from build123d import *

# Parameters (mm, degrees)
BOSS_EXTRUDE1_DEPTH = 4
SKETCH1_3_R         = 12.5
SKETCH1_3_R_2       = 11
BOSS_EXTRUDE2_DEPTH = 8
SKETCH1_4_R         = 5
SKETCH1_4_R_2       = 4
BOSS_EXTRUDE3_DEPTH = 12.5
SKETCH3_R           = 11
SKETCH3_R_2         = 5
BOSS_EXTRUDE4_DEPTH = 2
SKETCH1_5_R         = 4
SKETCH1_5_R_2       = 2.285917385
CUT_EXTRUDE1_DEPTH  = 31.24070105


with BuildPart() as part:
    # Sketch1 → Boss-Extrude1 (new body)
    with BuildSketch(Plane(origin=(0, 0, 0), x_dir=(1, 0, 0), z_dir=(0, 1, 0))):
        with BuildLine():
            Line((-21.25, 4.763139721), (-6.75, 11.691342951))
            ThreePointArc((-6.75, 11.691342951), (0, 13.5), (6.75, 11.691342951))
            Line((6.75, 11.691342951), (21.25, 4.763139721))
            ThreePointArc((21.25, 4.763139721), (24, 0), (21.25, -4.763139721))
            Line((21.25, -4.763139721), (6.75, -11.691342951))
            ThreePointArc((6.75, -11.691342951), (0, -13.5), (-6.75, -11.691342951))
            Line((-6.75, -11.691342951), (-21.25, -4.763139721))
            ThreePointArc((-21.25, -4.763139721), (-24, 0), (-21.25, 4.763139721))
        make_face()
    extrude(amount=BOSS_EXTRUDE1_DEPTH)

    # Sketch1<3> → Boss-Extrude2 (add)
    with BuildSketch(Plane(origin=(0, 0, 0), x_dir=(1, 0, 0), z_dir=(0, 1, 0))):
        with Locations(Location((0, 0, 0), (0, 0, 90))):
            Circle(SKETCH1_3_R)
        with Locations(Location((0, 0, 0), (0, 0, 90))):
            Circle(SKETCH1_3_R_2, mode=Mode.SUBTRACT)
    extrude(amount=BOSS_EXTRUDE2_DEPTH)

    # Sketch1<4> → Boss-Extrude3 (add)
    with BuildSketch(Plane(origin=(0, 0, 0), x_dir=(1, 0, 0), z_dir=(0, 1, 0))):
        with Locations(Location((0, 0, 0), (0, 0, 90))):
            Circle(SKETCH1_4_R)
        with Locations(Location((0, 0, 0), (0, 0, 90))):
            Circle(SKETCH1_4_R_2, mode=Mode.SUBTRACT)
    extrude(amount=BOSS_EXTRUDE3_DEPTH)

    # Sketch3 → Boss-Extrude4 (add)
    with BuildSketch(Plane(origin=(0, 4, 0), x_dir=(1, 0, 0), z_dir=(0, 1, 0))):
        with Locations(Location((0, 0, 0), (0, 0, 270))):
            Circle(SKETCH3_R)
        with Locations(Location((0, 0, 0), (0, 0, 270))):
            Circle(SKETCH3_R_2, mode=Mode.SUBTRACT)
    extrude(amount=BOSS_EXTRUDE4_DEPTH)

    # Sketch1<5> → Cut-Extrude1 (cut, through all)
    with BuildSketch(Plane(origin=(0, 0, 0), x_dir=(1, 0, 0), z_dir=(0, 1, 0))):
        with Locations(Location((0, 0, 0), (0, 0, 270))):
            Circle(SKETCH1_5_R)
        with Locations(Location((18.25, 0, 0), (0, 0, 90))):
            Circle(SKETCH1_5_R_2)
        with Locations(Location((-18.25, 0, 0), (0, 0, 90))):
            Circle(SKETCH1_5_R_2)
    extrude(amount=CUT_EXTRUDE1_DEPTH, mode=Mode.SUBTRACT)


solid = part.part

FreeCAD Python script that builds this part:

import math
import FreeCAD as App
import Part
import Sketcher

doc = App.newDocument("Part")
body = doc.addObject("PartDesign::Body", "Body")

sketch1 = body.newObject("Sketcher::SketchObject", "Sketch")
sketch1.AttachmentSupport = (doc.getObject("XZ_Plane"), [""])
sketch1.MapMode = "FlatFace"
sketch1.addGeometry([
    Part.LineSegment(App.Vector(-6.75, -11.691343, 0), App.Vector(-21.25, -4.76314, 0)),
    Part.ArcOfCircle(Part.Circle(App.Vector(-18.5, 0, 0), App.Vector(0, 0, 1), 5.5), math.radians(120), math.radians(240)),
    Part.LineSegment(App.Vector(-21.25, 4.76314, 0), App.Vector(-6.75, 11.691343, 0)),
    Part.ArcOfCircle(Part.Circle(App.Vector(0, 0, 0), App.Vector(0, 0, 1), 13.5), math.radians(60), math.radians(120)),
    Part.LineSegment(App.Vector(6.75, 11.691343, 0), App.Vector(21.25, 4.76314, 0)),
    Part.ArcOfCircle(Part.Circle(App.Vector(18.5, 0, 0), App.Vector(0, 0, 1), 5.5), math.radians(-60), math.radians(60)),
    Part.LineSegment(App.Vector(21.25, -4.76314, 0), App.Vector(6.75, -11.691343, 0)),
    Part.ArcOfCircle(Part.Circle(App.Vector(0, 0, 0), App.Vector(0, 0, 1), 13.5), math.radians(-120), math.radians(-60)),
], False)
sketch1.addConstraint([
    Sketcher.Constraint("Coincident", 0, 2, 1, 2),
    Sketcher.Constraint("Coincident", 1, 1, 2, 1),
    Sketcher.Constraint("Coincident", 2, 2, 3, 2),
    Sketcher.Constraint("Coincident", 3, 1, 4, 1),
    Sketcher.Constraint("Coincident", 4, 2, 5, 2),
    Sketcher.Constraint("Coincident", 5, 1, 6, 1),
    Sketcher.Constraint("Coincident", 6, 2, 7, 2),
    Sketcher.Constraint("Coincident", 7, 1, 0, 1),
    Sketcher.Constraint("Coincident", 3, 3, -1, 1),
    Sketcher.Constraint("Coincident", 7, 3, -1, 1),
    Sketcher.Constraint("Equal", 1, 5),
    Sketcher.Constraint("Equal", 3, 7),
    Sketcher.Constraint("Symmetric", 1, 3, 5, 3, -1, 1),
    Sketcher.Constraint("Symmetric", 1, 1, 4, 2, -2),
    Sketcher.Constraint("Parallel", 0, 4),
    Sketcher.Constraint("Parallel", 2, 6),
    Sketcher.Constraint("Horizontal", 2, 2, 3, 1),
    Sketcher.Constraint("Horizontal", 0, 2, 5, 1),
    Sketcher.Constraint("Vertical", 0, 2, 1, 1),
    Sketcher.Constraint("Radius", 1, 5.5),
    Sketcher.Constraint("Radius", 3, 13.5),
    Sketcher.Constraint("DistanceX", 1, 3, 5, 3, 37.0),
    Sketcher.Constraint("DistanceX", 2, 2, 4, 2, 28.0),
    Sketcher.Constraint("DistanceX", 1, 1, 2, 2, 14.5),
])
pad1 = body.newObject("PartDesign::Pad", "Pad")
pad1.Profile = sketch1
pad1.Length = 4
pad1.Reversed = True

sketch2 = body.newObject("Sketcher::SketchObject", "Sketch001")
sketch2.AttachmentSupport = (doc.getObject("XZ_Plane"), [""])
sketch2.MapMode = "FlatFace"
sketch2.addGeometry([
    Part.Circle(App.Vector(0, 0, 0), App.Vector(0, 0, 1), 12.5),
    Part.Circle(App.Vector(0, 0, 0), App.Vector(0, 0, 1), 11),
], False)
sketch2.addConstraint([
    Sketcher.Constraint("Coincident", 0, 3, -1, 1),
    Sketcher.Constraint("Coincident", 1, 3, -1, 1),
    Sketcher.Constraint("Diameter", 0, 25.0),
    Sketcher.Constraint("Diameter", 1, 22.0),
])
pad2 = body.newObject("PartDesign::Pad", "Pad001")
pad2.Profile = sketch2
pad2.Length = 8
pad2.Reversed = True

sketch3 = body.newObject("Sketcher::SketchObject", "Sketch002")
sketch3.AttachmentSupport = (doc.getObject("XZ_Plane"), [""])
sketch3.MapMode = "FlatFace"
sketch3.addGeometry([
    Part.Circle(App.Vector(0, 0, 0), App.Vector(0, 0, 1), 5),
    Part.Circle(App.Vector(0, 0, 0), App.Vector(0, 0, 1), 4),
], False)
sketch3.addConstraint([
    Sketcher.Constraint("Coincident", 0, 3, -1, 1),
    Sketcher.Constraint("Coincident", 1, 3, -1, 1),
    Sketcher.Constraint("Diameter", 0, 10.0),
    Sketcher.Constraint("Diameter", 1, 8.0),
])
pad3 = body.newObject("PartDesign::Pad", "Pad002")
pad3.Profile = sketch3
pad3.Length = 12.5
pad3.Reversed = True

sketch4 = body.newObject("Sketcher::SketchObject", "Sketch003")
sketch4.AttachmentSupport = (doc.getObject("XZ_Plane"), [""])
sketch4.MapMode = "FlatFace"
sketch4.AttachmentOffset = App.Placement(App.Vector(0, 0, -4), App.Rotation())
sketch4.addGeometry([
    Part.Circle(App.Vector(0, 0, 0), App.Vector(0, 0, 1), 11),
    Part.Circle(App.Vector(0, 0, 0), App.Vector(0, 0, 1), 5),
], False)
sketch4.addConstraint([
    Sketcher.Constraint("Coincident", 0, 3, -1, 1),
    Sketcher.Constraint("Coincident", 1, 3, -1, 1),
    Sketcher.Constraint("Diameter", 0, 22.0),
    Sketcher.Constraint("Diameter", 1, 10.0),
])
pad4 = body.newObject("PartDesign::Pad", "Pad003")
pad4.Profile = sketch4
pad4.Length = 2
pad4.Reversed = True

sketch5 = body.newObject("Sketcher::SketchObject", "Sketch004")
sketch5.AttachmentSupport = (doc.getObject("XZ_Plane"), [""])
sketch5.MapMode = "FlatFace"
sketch5.addGeometry([
    Part.Circle(App.Vector(0, 0, 0), App.Vector(0, 0, 1), 4),
    Part.Circle(App.Vector(18.25, 0, 0), App.Vector(0, 0, 1), 2.285917),
    Part.Circle(App.Vector(-18.25, 0, 0), App.Vector(0, 0, 1), 2.285917),
], False)
sketch5.addConstraint([
    Sketcher.Constraint("Coincident", 0, 3, -1, 1),
    Sketcher.Constraint("Equal", 1, 2),
    Sketcher.Constraint("Symmetric", 1, 3, 2, 3, -1, 1),
    Sketcher.Constraint("PointOnObject", 1, 3, -1),
    Sketcher.Constraint("Diameter", 0, 8.0),
    Sketcher.Constraint("DistanceX", 2, 3, 1, 3, 36.5),
    Sketcher.Constraint("Diameter", 1, 4.571835),
])
pocket1 = body.newObject("PartDesign::Pocket", "Pocket")
pocket1.Profile = sketch5
pocket1.Type = "ThroughAll"

doc.recompute()
